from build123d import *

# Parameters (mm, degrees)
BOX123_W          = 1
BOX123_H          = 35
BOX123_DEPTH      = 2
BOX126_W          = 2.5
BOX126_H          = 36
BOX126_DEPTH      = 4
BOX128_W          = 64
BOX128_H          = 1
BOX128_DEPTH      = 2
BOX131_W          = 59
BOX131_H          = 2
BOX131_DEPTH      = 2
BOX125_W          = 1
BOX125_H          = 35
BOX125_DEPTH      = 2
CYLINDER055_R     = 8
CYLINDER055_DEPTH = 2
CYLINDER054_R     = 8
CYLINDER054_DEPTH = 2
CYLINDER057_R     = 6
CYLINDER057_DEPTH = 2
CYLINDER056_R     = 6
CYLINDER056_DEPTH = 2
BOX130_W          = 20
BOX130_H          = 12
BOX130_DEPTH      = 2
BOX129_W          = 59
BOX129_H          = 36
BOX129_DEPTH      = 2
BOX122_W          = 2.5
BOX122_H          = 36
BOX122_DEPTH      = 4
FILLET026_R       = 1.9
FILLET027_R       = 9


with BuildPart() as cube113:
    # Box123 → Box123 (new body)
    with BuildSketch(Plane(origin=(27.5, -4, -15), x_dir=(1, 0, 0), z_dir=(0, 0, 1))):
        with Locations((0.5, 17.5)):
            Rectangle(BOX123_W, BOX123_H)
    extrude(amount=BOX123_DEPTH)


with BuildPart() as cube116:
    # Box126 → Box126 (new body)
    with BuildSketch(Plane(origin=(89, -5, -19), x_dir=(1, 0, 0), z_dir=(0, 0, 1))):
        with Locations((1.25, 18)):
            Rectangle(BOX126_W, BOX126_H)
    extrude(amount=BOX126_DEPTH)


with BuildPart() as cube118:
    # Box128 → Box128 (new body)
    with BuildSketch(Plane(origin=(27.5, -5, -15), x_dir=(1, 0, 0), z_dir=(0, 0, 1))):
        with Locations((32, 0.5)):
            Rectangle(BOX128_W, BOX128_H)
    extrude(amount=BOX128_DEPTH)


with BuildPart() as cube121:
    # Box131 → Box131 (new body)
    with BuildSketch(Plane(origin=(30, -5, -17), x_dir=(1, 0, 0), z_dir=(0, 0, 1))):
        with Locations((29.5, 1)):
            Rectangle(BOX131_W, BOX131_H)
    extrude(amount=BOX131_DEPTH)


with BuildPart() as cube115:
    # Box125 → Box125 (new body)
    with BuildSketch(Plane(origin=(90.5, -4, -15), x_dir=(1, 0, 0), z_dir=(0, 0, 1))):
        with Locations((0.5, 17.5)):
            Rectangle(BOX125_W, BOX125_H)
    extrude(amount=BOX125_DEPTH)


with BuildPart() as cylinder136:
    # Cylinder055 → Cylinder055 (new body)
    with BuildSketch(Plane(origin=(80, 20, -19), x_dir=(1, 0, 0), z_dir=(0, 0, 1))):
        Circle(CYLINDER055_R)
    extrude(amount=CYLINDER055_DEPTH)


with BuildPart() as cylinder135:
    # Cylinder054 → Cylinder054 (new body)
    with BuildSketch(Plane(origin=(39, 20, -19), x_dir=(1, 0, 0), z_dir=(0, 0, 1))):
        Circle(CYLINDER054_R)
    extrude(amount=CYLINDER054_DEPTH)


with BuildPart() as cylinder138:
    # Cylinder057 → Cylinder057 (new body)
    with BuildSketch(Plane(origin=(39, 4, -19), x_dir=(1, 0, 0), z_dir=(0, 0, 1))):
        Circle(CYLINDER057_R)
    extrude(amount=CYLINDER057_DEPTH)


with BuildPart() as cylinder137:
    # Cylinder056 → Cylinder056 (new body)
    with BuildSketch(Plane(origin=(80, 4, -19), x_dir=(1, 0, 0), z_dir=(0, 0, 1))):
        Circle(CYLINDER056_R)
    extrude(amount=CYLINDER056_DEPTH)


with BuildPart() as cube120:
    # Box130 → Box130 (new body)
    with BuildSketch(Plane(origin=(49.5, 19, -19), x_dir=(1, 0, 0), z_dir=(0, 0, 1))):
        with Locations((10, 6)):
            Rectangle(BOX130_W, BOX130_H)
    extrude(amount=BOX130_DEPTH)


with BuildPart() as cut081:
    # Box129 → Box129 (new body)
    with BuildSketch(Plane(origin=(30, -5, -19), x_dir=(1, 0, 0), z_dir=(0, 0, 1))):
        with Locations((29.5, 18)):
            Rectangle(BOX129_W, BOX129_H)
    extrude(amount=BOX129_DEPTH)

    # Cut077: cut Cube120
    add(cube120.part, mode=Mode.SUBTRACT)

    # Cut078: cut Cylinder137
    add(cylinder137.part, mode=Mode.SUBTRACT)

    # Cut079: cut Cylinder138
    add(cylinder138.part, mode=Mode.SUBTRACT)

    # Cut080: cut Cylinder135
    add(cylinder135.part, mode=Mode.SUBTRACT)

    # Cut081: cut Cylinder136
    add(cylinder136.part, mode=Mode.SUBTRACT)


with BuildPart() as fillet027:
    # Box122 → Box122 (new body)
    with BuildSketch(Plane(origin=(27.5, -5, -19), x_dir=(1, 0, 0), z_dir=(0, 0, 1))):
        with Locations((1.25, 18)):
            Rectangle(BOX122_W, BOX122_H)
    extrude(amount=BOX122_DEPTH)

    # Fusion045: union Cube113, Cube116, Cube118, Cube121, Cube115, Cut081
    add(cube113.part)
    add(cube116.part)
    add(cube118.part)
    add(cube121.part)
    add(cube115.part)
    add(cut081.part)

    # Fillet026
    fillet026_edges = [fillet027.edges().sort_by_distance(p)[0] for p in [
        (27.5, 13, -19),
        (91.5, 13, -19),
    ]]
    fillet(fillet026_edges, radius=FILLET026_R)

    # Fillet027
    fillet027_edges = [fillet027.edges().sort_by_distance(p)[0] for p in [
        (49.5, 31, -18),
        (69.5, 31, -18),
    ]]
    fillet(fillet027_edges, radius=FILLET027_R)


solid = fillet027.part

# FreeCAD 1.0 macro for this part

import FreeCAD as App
import Part
import Sketcher

V = App.Vector
Q = App.Units.Quantity


def edges_at(feature, points):
    """Names of the edges that pass closest to the given points."""
    edges = feature.Shape.Edges
    near = lambda p: min(range(len(edges)), key=lambda i: edges[i].distToShape(Part.Vertex(*p))[0])
    return sorted({f"Edge{near(p) + 1}" for p in points})


def add_polygon(sketch, points):
    """Adds a closed chain of lines whose ends are joined by coincident constraints."""
    first, n = sketch.GeometryCount, len(points)
    for a, b in zip(points, points[1:] + points[:1]):
        sketch.addGeometry(Part.LineSegment(App.Vector(*a, 0), App.Vector(*b, 0)), False)
    for i in range(n):
        sketch.addConstraint(Sketcher.Constraint("Coincident", first + i, 2, first + (i + 1) % n, 1))

doc = App.newDocument("Part")
body = doc.addObject("PartDesign::Body", "Body")

sketch1 = doc.addObject("Sketcher::SketchObject", "Sketch")
body.addObject(sketch1)
sketch1.AttachmentSupport = (doc.XY_Plane, [""])
sketch1.MapMode = "FlatFace"
sketch1.AttachmentOffset = App.Placement(V(0, 0, -15), App.Rotation())
add_polygon(sketch1, [(27.5, 31), (27.5, -4), (28.5, -4), (28.5, 31)])
sketch1.addConstraint([
    Sketcher.Constraint("Vertical", 0),
    Sketcher.Constraint("Horizontal", 1),
    Sketcher.Constraint("Vertical", 2),
    Sketcher.Constraint("Horizontal", 3),
    Sketcher.Constraint("DistanceX", 1, 1, 1, 2, Q("1 mm")),
    Sketcher.Constraint("DistanceY", 0, 2, 0, 1, Q("35 mm")),
    Sketcher.Constraint("DistanceY", 0, 2, -1, 1, Q("4 mm")),
    Sketcher.Constraint("DistanceX", -1, 1, 0, 2, Q("27.5 mm")),
])
pad1 = doc.addObject("PartDesign::Pad", "Pad")
body.addObject(pad1)
pad1.Profile = sketch1
pad1.Length = 2
body2 = doc.addObject("PartDesign::Body", "Body001")

sketch2 = doc.addObject("Sketcher::SketchObject", "Sketch001")
body2.addObject(sketch2)
sketch2.AttachmentSupport = (doc.getObject("XY_Plane001"), [""])
sketch2.MapMode = "FlatFace"
sketch2.AttachmentOffset = App.Placement(V(0, 0, -19), App.Rotation())
add_polygon(sketch2, [(89, 31), (89, -5), (91.5, -5), (91.5, 31)])
sketch2.addConstraint([
    Sketcher.Constraint("Vertical", 0),
    Sketcher.Constraint("Horizontal", 1),
    Sketcher.Constraint("Vertical", 2),
    Sketcher.Constraint("Horizontal", 3),
    Sketcher.Constraint("DistanceY", 0, 2, 0, 1, Q("36 mm")),
    Sketcher.Constraint("DistanceX", 1, 1, 1, 2, Q("2.5 mm")),
    Sketcher.Constraint("DistanceX", -1, 1, 0, 2, Q("89 mm")),
    Sketcher.Constraint("DistanceY", 0, 2, -1, 1, Q("5 mm")),
])
pad2 = doc.addObject("PartDesign::Pad", "Pad001")
body2.addObject(pad2)
pad2.Profile = sketch2
pad2.Length = 4
body3 = doc.addObject("PartDesign::Body", "Body002")

sketch3 = doc.addObject("Sketcher::SketchObject", "Sketch002")
body3.addObject(sketch3)
sketch3.AttachmentSupport = (doc.getObject("XY_Plane002"), [""])
sketch3.MapMode = "FlatFace"
sketch3.AttachmentOffset = App.Placement(V(0, 0, -15), App.Rotation())
add_polygon(sketch3, [(27.5, -4), (27.5, -5), (91.5, -5), (91.5, -4)])
sketch3.addConstraint([
    Sketcher.Constraint("Vertical", 0),
    Sketcher.Constraint("Horizontal", 1),
    Sketcher.Constraint("Vertical", 2),
    Sketcher.Constraint("Horizontal", 3),
    Sketcher.Constraint("DistanceX", 1, 1, 1, 2, Q("64 mm")),
    Sketcher.Constraint("DistanceY", 0, 2, 0, 1, Q("1 mm")),
    Sketcher.Constraint("DistanceY", 0, 2, -1, 1, Q("5 mm")),
    Sketcher.Constraint("DistanceX", -1, 1, 0, 2, Q("27.5 mm")),
])
pad3 = doc.addObject("PartDesign::Pad", "Pad002")
body3.addObject(pad3)
pad3.Profile = sketch3
pad3.Length = 2
body4 = doc.addObject("PartDesign::Body", "Body003")

sketch4 = doc.addObject("Sketcher::SketchObject", "Sketch003")
body4.addObject(sketch4)
sketch4.AttachmentSupport = (doc.getObject("XY_Plane003"), [""])
sketch4.MapMode = "FlatFace"
sketch4.AttachmentOffset = App.Placement(V(0, 0, -17), App.Rotation())
add_polygon(sketch4, [(30, -3), (30, -5), (89, -5), (89, -3)])
sketch4.addConstraint([
    Sketcher.Constraint("Vertical", 0),
    Sketcher.Constraint("Horizontal", 1),
    Sketcher.Constraint("Vertical", 2),
    Sketcher.Constraint("Horizontal", 3),
    Sketcher.Constraint("DistanceX", 1, 1, 1, 2, Q("59 mm")),
    Sketcher.Constraint("DistanceY", 0, 2, 0, 1, Q("2 mm")),
    Sketcher.Constraint("DistanceX", -1, 1, 0, 2, Q("30 mm")),
    Sketcher.Constraint("DistanceY", 0, 2, -1, 1, Q("5 mm")),
])
pad4 = doc.addObject("PartDesign::Pad", "Pad003")
body4.addObject(pad4)
pad4.Profile = sketch4
pad4.Length = 2
body5 = doc.addObject("PartDesign::Body", "Body004")

sketch5 = doc.addObject("Sketcher::SketchObject", "Sketch004")
body5.addObject(sketch5)
sketch5.AttachmentSupport = (doc.getObject("XY_Plane004"), [""])
sketch5.MapMode = "FlatFace"
sketch5.AttachmentOffset = App.Placement(V(0, 0, -15), App.Rotation())
add_polygon(sketch5, [(90.5, 31), (90.5, -4), (91.5, -4), (91.5, 31)])
sketch5.addConstraint([
    Sketcher.Constraint("Vertical", 0),
    Sketcher.Constraint("Horizontal", 1),
    Sketcher.Constraint("Vertical", 2),
    Sketcher.Constraint("Horizontal", 3),
    Sketcher.Constraint("DistanceX", 1, 1, 1, 2, Q("1 mm")),
    Sketcher.Constraint("DistanceY", 0, 2, 0, 1, Q("35 mm")),
    Sketcher.Constraint("DistanceY", 0, 2, -1, 1, Q("4 mm")),
    Sketcher.Constraint("DistanceX", -1, 1, 0, 2, Q("90.5 mm")),
])
pad5 = doc.addObject("PartDesign::Pad", "Pad004")
body5.addObject(pad5)
pad5.Profile = sketch5
pad5.Length = 2
body6 = doc.addObject("PartDesign::Body", "Body005")

sketch6 = doc.addObject("Sketcher::SketchObject", "Sketch005")
body6.addObject(sketch6)
sketch6.AttachmentSupport = (doc.getObject("XY_Plane005"), [""])
sketch6.MapMode = "FlatFace"
sketch6.AttachmentOffset = App.Placement(V(0, 0, -19), App.Rotation())
sketch6.addGeometry(Part.Circle(V(80, 20, 0), V(0, 0, 1), 8), False)
sketch6.addConstraint([
    Sketcher.Constraint("Diameter", 0, Q("16 mm")),
    Sketcher.Constraint("DistanceX", -1, 1, 0, 3, Q("80 mm")),
    Sketcher.Constraint("DistanceY", -1, 1, 0, 3, Q("20 mm")),
])
pad6 = doc.addObject("PartDesign::Pad", "Pad005")
body6.addObject(pad6)
pad6.Profile = sketch6
pad6.Length = 2
body7 = doc.addObject("PartDesign::Body", "Body006")

sketch7 = doc.addObject("Sketcher::SketchObject", "Sketch006")
body7.addObject(sketch7)
sketch7.AttachmentSupport = (doc.getObject("XY_Plane006"), [""])
sketch7.MapMode = "FlatFace"
sketch7.AttachmentOffset = App.Placement(V(0, 0, -19), App.Rotation())
sketch7.addGeometry(Part.Circle(V(39, 20, 0), V(0, 0, 1), 8), False)
sketch7.addConstraint([
    Sketcher.Constraint("Diameter", 0, Q("16 mm")),
    Sketcher.Constraint("DistanceX", -1, 1, 0, 3, Q("39 mm")),
    Sketcher.Constraint("DistanceY", -1, 1, 0, 3, Q("20 mm")),
])
pad7 = doc.addObject("PartDesign::Pad", "Pad006")
body7.addObject(pad7)
pad7.Profile = sketch7
pad7.Length = 2
body8 = doc.addObject("PartDesign::Body", "Body007")

sketch8 = doc.addObject("Sketcher::SketchObject", "Sketch007")
body8.addObject(sketch8)
sketch8.AttachmentSupport = (doc.getObject("XY_Plane007"), [""])
sketch8.MapMode = "FlatFace"
sketch8.AttachmentOffset = App.Placement(V(0, 0, -19), App.Rotation())
sketch8.addGeometry(Part.Circle(V(39, 4, 0), V(0, 0, 1), 6), False)
sketch8.addConstraint([
    Sketcher.Constraint("Diameter", 0, Q("12 mm")),
    Sketcher.Constraint("DistanceX", -1, 1, 0, 3, Q("39 mm")),
    Sketcher.Constraint("DistanceY", -1, 1, 0, 3, Q("4 mm")),
])
pad8 = doc.addObject("PartDesign::Pad", "Pad007")
body8.addObject(pad8)
pad8.Profile = sketch8
pad8.Length = 2
body9 = doc.addObject("PartDesign::Body", "Body008")

sketch9 = doc.addObject("Sketcher::SketchObject", "Sketch008")
body9.addObject(sketch9)
sketch9.AttachmentSupport = (doc.getObject("XY_Plane008"), [""])
sketch9.MapMode = "FlatFace"
sketch9.AttachmentOffset = App.Placement(V(0, 0, -19), App.Rotation())
sketch9.addGeometry(Part.Circle(V(80, 4, 0), V(0, 0, 1), 6), False)
sketch9.addConstraint([
    Sketcher.Constraint("Diameter", 0, Q("12 mm")),
    Sketcher.Constraint("DistanceX", -1, 1, 0, 3, Q("80 mm")),
    Sketcher.Constraint("DistanceY", -1, 1, 0, 3, Q("4 mm")),
])
pad9 = doc.addObject("PartDesign::Pad", "Pad008")
body9.addObject(pad9)
pad9.Profile = sketch9
pad9.Length = 2
body10 = doc.addObject("PartDesign::Body", "Body009")

sketch10 = doc.addObject("Sketcher::SketchObject", "Sketch009")
body10.addObject(sketch10)
sketch10.AttachmentSupport = (doc.getObject("XY_Plane009"), [""])
sketch10.MapMode = "FlatFace"
sketch10.AttachmentOffset = App.Placement(V(0, 0, -19), App.Rotation())
add_polygon(sketch10, [(50, 31), (50, 19), (70, 19), (70, 31)])
sketch10.addConstraint([
    Sketcher.Constraint("Vertical", 0),
    Sketcher.Constraint("Horizontal", 1),
    Sketcher.Constraint("Vertical", 2),
    Sketcher.Constraint("Horizontal", 3),
    Sketcher.Constraint("DistanceX", 1, 1, 1, 2, Q("20 mm")),
    Sketcher.Constraint("DistanceY", 0, 2, 0, 1, Q("12 mm")),
    Sketcher.Constraint("DistanceY", -1, 1, 0, 2, Q("19 mm")),
    Sketcher.Constraint("DistanceX", -1, 1, 0, 2, Q("49.5 mm")),
])
pad10 = doc.addObject("PartDesign::Pad", "Pad009")
body10.addObject(pad10)
pad10.Profile = sketch10
pad10.Length = 2
body11 = doc.addObject("PartDesign::Body", "Body010")

sketch11 = doc.addObject("Sketcher::SketchObject", "Sketch010")
body11.addObject(sketch11)
sketch11.AttachmentSupport = (doc.getObject("XY_Plane010"), [""])
sketch11.MapMode = "FlatFace"
sketch11.AttachmentOffset = App.Placement(V(0, 0, -19), App.Rotation())
add_polygon(sketch11, [(30, 31), (30, -5), (89, -5), (89, 31)])
sketch11.addConstraint([
    Sketcher.Constraint("Vertical", 0),
    Sketcher.Constraint("Horizontal", 1),
    Sketcher.Constraint("Vertical", 2),
    Sketcher.Constraint("Horizontal", 3),
    Sketcher.Constraint("DistanceX", 1, 1, 1, 2, Q("59 mm")),
    Sketcher.Constraint("DistanceY", 0, 2, 0, 1, Q("36 mm")),
    Sketcher.Constraint("DistanceX", -1, 1, 0, 2, Q("30 mm")),
    Sketcher.Constraint("DistanceY", 0, 2, -1, 1, Q("5 mm")),
])
pad11 = doc.addObject("PartDesign::Pad", "Pad010")
body11.addObject(pad11)
pad11.Profile = sketch11
pad11.Length = 2
doc.recompute()

boolean = doc.addObject("PartDesign::Boolean", "Boolean")
body11.addObject(boolean)
boolean.Type = "Cut"
boolean.addObjects([body10])
doc.recompute()

boolean2 = doc.addObject("PartDesign::Boolean", "Boolean001")
body11.addObject(boolean2)
boolean2.Type = "Cut"
boolean2.addObjects([body9])
doc.recompute()

boolean3 = doc.addObject("PartDesign::Boolean", "Boolean002")
body11.addObject(boolean3)
boolean3.Type = "Cut"
boolean3.addObjects([body8])
doc.recompute()

boolean4 = doc.addObject("PartDesign::Boolean", "Boolean003")
body11.addObject(boolean4)
boolean4.Type = "Cut"
boolean4.addObjects([body7])
doc.recompute()

boolean5 = doc.addObject("PartDesign::Boolean", "Boolean004")
body11.addObject(boolean5)
boolean5.Type = "Cut"
boolean5.addObjects([body6])
body12 = doc.addObject("PartDesign::Body", "Body011")
body12.AllowCompound = True

sketch12 = doc.addObject("Sketcher::SketchObject", "Sketch011")
body12.addObject(sketch12)
sketch12.AttachmentSupport = (doc.getObject("XY_Plane011"), [""])
sketch12.MapMode = "FlatFace"
sketch12.AttachmentOffset = App.Placement(V(0, 0, -19), App.Rotation())
add_polygon(sketch12, [(27.5, 31), (27.5, -5), (30, -5), (30, 31)])
sketch12.addConstraint([
    Sketcher.Constraint("Vertical", 0),
    Sketcher.Constraint("Horizontal", 1),
    Sketcher.Constraint("Vertical", 2),
    Sketcher.Constraint("Horizontal", 3),
    Sketcher.Constraint("DistanceY", 0, 2, 0, 1, Q("36 mm")),
    Sketcher.Constraint("DistanceX", 1, 1, 1, 2, Q("2.5 mm")),
    Sketcher.Constraint("DistanceY", 0, 2, -1, 1, Q("5 mm")),
    Sketcher.Constraint("DistanceX", -1, 1, 1, 2, Q("30 mm")),
])
pad12 = doc.addObject("PartDesign::Pad", "Pad011")
body12.addObject(pad12)
pad12.Profile = sketch12
pad12.Length = 4
doc.recompute()

boolean6 = doc.addObject("PartDesign::Boolean", "Boolean005")
body12.addObject(boolean6)
boolean6.Type = "Fuse"
boolean6.addObjects([body])
doc.recompute()

boolean7 = doc.addObject("PartDesign::Boolean", "Boolean006")
body12.addObject(boolean7)
boolean7.Type = "Fuse"
boolean7.addObjects([body2])
doc.recompute()

boolean8 = doc.addObject("PartDesign::Boolean", "Boolean007")
body12.addObject(boolean8)
boolean8.Type = "Fuse"
boolean8.addObjects([body3])
doc.recompute()

boolean9 = doc.addObject("PartDesign::Boolean", "Boolean008")
body12.addObject(boolean9)
boolean9.Type = "Fuse"
boolean9.addObjects([body4])
doc.recompute()

boolean10 = doc.addObject("PartDesign::Boolean", "Boolean009")
body12.addObject(boolean10)
boolean10.Type = "Fuse"
boolean10.addObjects([body5])
doc.recompute()

boolean11 = doc.addObject("PartDesign::Boolean", "Boolean010")
body12.addObject(boolean11)
boolean11.Type = "Fuse"
boolean11.addObjects([body11])
doc.recompute()

fillet = doc.addObject("PartDesign::Fillet", "Fillet")
body12.addObject(fillet)
fillet.Base = (boolean11, edges_at(boolean11, [(27.5, 13, -19), (91.5, 13, -19)]))
fillet.Radius = 1.9
doc.recompute()

fillet2 = doc.addObject("PartDesign::Fillet", "Fillet001")
body12.addObject(fillet2)
fillet2.Base = (fillet, edges_at(fillet, [(49.5, 31, -18), (69.5, 31, -18)]))
fillet2.Radius = 9

doc.recompute()
